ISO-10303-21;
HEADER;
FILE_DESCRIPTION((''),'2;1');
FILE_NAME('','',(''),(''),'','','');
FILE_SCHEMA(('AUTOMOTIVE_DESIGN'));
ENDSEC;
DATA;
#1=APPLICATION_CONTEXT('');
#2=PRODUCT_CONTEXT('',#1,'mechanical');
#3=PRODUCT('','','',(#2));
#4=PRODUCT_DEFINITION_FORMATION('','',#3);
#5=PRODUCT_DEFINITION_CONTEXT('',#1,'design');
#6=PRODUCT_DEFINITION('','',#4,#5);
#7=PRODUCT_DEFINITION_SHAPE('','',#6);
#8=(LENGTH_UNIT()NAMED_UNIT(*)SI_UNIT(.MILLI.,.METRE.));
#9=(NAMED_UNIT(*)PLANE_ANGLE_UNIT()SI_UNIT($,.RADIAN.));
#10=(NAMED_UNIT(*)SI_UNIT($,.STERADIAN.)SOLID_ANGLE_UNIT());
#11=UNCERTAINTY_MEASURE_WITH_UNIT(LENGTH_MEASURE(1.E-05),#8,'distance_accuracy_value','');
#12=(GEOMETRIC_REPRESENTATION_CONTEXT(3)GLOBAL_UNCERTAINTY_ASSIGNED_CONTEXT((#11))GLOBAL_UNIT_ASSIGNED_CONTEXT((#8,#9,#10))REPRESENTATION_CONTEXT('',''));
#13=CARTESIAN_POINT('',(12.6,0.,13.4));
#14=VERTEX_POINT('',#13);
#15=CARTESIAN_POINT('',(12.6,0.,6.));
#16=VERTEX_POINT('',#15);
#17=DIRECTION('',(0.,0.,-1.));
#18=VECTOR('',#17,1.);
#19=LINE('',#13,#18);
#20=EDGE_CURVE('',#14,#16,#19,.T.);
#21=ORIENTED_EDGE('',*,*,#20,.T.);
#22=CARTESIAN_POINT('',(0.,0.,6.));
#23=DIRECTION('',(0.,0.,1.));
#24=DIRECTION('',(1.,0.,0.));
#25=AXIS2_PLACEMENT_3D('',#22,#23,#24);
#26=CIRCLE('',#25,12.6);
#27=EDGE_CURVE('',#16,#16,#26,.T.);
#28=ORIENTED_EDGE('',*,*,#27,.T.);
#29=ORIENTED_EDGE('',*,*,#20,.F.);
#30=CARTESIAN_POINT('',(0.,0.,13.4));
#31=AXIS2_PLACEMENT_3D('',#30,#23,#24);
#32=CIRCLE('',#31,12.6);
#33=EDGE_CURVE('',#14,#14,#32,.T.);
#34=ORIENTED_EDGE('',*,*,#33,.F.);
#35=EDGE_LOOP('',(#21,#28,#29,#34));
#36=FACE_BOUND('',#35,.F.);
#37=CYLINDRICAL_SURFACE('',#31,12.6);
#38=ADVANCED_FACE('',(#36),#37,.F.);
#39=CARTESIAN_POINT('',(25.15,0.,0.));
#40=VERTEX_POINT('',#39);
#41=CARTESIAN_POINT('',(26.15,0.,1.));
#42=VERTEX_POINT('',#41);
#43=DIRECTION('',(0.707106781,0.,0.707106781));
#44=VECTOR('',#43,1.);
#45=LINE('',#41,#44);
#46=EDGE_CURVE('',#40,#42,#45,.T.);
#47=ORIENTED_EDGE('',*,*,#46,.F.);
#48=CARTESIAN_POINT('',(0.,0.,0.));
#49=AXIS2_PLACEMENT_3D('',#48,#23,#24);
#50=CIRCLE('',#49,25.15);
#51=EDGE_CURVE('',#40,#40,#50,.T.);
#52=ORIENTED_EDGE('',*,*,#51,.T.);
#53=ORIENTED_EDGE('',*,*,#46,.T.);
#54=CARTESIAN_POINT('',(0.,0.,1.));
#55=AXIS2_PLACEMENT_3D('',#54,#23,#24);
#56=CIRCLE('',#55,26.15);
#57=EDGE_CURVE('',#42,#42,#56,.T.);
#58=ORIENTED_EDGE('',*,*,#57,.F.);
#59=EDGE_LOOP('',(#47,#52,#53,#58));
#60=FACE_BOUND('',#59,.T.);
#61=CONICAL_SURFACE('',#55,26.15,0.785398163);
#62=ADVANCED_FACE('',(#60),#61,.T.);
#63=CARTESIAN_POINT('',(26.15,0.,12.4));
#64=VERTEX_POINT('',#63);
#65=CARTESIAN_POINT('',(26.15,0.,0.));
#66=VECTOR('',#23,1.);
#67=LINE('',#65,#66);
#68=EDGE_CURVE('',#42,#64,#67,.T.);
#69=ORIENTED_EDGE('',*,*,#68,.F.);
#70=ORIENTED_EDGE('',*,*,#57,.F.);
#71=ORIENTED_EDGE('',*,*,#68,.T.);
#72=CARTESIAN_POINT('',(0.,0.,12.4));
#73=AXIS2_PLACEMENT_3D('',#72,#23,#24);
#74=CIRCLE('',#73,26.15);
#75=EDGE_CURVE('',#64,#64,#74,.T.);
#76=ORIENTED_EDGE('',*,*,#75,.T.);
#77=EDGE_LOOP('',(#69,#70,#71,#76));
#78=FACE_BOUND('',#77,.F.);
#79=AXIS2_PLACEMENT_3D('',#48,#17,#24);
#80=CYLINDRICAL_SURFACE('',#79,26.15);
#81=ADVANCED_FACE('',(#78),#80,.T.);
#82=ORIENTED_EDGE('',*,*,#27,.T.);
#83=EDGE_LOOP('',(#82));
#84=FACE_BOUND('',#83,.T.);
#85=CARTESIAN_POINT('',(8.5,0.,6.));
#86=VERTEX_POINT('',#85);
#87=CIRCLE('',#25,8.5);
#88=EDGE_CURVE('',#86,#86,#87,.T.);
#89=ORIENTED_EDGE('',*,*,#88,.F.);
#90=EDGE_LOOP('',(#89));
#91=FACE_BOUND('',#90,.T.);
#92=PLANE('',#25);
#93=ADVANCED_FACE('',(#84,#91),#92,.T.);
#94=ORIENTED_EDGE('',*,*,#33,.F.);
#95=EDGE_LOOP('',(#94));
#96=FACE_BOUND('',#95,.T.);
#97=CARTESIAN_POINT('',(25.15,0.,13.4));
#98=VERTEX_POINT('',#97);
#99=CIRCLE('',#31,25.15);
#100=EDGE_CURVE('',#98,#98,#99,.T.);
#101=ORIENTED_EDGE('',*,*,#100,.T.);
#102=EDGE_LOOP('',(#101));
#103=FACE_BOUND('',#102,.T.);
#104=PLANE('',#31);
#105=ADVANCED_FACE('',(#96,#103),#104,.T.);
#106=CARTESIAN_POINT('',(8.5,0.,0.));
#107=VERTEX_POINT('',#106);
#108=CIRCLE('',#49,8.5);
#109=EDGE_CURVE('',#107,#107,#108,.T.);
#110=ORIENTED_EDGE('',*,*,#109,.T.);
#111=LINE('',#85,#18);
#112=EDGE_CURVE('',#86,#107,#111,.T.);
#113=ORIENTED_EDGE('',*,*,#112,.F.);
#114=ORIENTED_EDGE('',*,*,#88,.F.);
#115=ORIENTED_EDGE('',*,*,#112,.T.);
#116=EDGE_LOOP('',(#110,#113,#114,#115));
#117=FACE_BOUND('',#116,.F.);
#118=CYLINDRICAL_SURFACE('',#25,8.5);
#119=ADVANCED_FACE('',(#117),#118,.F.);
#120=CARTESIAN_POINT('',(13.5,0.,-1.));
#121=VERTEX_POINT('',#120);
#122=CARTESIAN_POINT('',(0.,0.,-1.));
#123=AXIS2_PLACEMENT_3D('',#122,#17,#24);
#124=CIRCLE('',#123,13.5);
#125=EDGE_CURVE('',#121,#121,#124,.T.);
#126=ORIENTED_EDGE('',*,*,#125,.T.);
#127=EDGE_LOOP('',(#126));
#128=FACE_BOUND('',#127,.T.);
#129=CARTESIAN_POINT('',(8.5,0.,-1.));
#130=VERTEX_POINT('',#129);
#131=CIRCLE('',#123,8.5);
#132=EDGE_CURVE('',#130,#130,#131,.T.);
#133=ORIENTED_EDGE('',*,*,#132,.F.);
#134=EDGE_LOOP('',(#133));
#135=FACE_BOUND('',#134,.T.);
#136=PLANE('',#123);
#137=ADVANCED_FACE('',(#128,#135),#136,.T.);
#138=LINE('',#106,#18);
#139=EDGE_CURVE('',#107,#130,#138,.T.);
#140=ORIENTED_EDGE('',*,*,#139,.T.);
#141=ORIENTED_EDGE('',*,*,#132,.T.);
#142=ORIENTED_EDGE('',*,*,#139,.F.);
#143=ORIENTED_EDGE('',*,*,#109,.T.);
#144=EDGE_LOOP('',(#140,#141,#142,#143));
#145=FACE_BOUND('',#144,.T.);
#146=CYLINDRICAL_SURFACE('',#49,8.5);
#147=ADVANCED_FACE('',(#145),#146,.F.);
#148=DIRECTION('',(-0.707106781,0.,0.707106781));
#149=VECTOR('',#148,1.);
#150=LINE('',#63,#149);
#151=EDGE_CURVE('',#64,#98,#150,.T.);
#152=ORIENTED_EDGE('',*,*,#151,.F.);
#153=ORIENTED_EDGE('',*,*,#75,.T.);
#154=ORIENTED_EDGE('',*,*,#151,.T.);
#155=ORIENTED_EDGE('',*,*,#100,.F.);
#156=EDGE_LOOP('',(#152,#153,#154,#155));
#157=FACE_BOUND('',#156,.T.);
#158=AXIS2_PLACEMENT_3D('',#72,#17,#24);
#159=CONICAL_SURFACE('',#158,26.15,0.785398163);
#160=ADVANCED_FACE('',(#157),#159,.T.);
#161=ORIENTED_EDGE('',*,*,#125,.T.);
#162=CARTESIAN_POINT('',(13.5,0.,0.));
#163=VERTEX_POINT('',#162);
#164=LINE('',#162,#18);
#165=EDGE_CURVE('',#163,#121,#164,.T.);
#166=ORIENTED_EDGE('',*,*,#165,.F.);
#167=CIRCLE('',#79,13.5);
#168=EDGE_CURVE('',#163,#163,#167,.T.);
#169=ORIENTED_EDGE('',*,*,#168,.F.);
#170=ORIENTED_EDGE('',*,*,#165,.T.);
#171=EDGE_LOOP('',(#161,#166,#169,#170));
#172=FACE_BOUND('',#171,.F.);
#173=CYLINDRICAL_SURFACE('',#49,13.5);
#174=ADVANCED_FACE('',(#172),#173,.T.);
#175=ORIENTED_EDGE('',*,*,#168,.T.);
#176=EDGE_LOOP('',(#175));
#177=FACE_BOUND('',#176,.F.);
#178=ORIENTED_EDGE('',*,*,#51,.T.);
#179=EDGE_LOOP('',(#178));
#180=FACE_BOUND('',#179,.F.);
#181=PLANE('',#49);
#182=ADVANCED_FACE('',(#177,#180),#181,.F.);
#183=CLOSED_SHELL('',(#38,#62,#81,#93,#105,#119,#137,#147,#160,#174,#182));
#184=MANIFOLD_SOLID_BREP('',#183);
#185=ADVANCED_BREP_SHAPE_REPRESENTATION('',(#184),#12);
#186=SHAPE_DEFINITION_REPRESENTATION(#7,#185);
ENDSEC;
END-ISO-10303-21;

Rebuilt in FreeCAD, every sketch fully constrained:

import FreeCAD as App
import Part
import Sketcher


def edges_at(feature, points):
    """Names of the edges that pass closest to the given points."""
    edges = feature.Shape.Edges
    near = lambda p: min(range(len(edges)), key=lambda i: edges[i].distToShape(Part.Vertex(*p))[0])
    return sorted({f"Edge{near(p) + 1}" for p in points})

doc = App.newDocument("Part")
body = doc.addObject("PartDesign::Body", "Body")

sketch1 = body.newObject("Sketcher::SketchObject", "Sketch")
sketch1.AttachmentSupport = (doc.getObject("XY_Plane"), [""])
sketch1.MapMode = "FlatFace"
sketch1.addGeometry(Part.Circle(App.Vector(0, 0, 0), App.Vector(0, 0, 1), 26), False)
sketch1.addConstraint([
    Sketcher.Constraint("Coincident", 0, 3, -1, 1),
    Sketcher.Constraint("Diameter", 0, 52.3),
])
pad1 = body.newObject("PartDesign::Pad", "Pad")
pad1.Profile = sketch1
pad1.Length = 13.4

sketch2 = body.newObject("Sketcher::SketchObject", "Sketch001")
sketch2.AttachmentSupport = (doc.getObject("XY_Plane"), [""])
sketch2.MapMode = "FlatFace"
sketch2.AttachmentOffset = App.Placement(App.Vector(0, 0, 13.4), App.Rotation())
sketch2.addGeometry(Part.Circle(App.Vector(0, 0, 0), App.Vector(0, 0, 1), 13), False)
sketch2.addConstraint([
    Sketcher.Constraint("Coincident", 0, 3, -1, 1),
    Sketcher.Constraint("Diameter", 0, 25.2),
])
pocket1 = body.newObject("PartDesign::Pocket", "Pocket")
pocket1.Profile = sketch2
pocket1.Length = 7.4

sketch3 = body.newObject("Sketcher::SketchObject", "Sketch002")
sketch3.AttachmentSupport = (doc.getObject("XY_Plane"), [""])
sketch3.MapMode = "FlatFace"
sketch3.AttachmentOffset = App.Placement(App.Vector(0, 0, 6), App.Rotation())
sketch3.addGeometry(Part.Circle(App.Vector(0, 0, 0), App.Vector(0, 0, 1), 8), False)
sketch3.addConstraint([
    Sketcher.Constraint("Coincident", 0, 3, -1, 1),
    Sketcher.Constraint("Diameter", 0, 17.0),
])
pocket2 = body.newObject("PartDesign::Pocket", "Pocket001")
pocket2.Profile = sketch3
pocket2.Type = "ThroughAll"

sketch4 = body.newObject("Sketcher::SketchObject", "Sketch003")
sketch4.AttachmentSupport = (doc.getObject("XY_Plane"), [""])
sketch4.MapMode = "FlatFace"
sketch4.addGeometry([
    Part.Circle(App.Vector(0, 0, 0), App.Vector(0, 0, 1), 14),
    Part.Circle(App.Vector(0, 0, 0), App.Vector(0, 0, 1), 8),
], False)
sketch4.addConstraint([
    Sketcher.Constraint("Coincident", 0, 3, -1, 1),
    Sketcher.Constraint("Coincident", 1, 3, -1, 1),
    Sketcher.Constraint("Diameter", 0, 27.0),
    Sketcher.Constraint("Diameter", 1, 17.0),
])
pad2 = body.newObject("PartDesign::Pad", "Pad001")
pad2.Profile = sketch4
pad2.Length = 1
pad2.Reversed = True
doc.recompute()

chamfer = body.newObject("PartDesign::Chamfer", "Chamfer")
chamfer.Base = (pad2, edges_at(pad2, [(-26.15, 0, 13.4), (-26.15, 0, 0)]))
chamfer.Size = 1

doc.recompute()
